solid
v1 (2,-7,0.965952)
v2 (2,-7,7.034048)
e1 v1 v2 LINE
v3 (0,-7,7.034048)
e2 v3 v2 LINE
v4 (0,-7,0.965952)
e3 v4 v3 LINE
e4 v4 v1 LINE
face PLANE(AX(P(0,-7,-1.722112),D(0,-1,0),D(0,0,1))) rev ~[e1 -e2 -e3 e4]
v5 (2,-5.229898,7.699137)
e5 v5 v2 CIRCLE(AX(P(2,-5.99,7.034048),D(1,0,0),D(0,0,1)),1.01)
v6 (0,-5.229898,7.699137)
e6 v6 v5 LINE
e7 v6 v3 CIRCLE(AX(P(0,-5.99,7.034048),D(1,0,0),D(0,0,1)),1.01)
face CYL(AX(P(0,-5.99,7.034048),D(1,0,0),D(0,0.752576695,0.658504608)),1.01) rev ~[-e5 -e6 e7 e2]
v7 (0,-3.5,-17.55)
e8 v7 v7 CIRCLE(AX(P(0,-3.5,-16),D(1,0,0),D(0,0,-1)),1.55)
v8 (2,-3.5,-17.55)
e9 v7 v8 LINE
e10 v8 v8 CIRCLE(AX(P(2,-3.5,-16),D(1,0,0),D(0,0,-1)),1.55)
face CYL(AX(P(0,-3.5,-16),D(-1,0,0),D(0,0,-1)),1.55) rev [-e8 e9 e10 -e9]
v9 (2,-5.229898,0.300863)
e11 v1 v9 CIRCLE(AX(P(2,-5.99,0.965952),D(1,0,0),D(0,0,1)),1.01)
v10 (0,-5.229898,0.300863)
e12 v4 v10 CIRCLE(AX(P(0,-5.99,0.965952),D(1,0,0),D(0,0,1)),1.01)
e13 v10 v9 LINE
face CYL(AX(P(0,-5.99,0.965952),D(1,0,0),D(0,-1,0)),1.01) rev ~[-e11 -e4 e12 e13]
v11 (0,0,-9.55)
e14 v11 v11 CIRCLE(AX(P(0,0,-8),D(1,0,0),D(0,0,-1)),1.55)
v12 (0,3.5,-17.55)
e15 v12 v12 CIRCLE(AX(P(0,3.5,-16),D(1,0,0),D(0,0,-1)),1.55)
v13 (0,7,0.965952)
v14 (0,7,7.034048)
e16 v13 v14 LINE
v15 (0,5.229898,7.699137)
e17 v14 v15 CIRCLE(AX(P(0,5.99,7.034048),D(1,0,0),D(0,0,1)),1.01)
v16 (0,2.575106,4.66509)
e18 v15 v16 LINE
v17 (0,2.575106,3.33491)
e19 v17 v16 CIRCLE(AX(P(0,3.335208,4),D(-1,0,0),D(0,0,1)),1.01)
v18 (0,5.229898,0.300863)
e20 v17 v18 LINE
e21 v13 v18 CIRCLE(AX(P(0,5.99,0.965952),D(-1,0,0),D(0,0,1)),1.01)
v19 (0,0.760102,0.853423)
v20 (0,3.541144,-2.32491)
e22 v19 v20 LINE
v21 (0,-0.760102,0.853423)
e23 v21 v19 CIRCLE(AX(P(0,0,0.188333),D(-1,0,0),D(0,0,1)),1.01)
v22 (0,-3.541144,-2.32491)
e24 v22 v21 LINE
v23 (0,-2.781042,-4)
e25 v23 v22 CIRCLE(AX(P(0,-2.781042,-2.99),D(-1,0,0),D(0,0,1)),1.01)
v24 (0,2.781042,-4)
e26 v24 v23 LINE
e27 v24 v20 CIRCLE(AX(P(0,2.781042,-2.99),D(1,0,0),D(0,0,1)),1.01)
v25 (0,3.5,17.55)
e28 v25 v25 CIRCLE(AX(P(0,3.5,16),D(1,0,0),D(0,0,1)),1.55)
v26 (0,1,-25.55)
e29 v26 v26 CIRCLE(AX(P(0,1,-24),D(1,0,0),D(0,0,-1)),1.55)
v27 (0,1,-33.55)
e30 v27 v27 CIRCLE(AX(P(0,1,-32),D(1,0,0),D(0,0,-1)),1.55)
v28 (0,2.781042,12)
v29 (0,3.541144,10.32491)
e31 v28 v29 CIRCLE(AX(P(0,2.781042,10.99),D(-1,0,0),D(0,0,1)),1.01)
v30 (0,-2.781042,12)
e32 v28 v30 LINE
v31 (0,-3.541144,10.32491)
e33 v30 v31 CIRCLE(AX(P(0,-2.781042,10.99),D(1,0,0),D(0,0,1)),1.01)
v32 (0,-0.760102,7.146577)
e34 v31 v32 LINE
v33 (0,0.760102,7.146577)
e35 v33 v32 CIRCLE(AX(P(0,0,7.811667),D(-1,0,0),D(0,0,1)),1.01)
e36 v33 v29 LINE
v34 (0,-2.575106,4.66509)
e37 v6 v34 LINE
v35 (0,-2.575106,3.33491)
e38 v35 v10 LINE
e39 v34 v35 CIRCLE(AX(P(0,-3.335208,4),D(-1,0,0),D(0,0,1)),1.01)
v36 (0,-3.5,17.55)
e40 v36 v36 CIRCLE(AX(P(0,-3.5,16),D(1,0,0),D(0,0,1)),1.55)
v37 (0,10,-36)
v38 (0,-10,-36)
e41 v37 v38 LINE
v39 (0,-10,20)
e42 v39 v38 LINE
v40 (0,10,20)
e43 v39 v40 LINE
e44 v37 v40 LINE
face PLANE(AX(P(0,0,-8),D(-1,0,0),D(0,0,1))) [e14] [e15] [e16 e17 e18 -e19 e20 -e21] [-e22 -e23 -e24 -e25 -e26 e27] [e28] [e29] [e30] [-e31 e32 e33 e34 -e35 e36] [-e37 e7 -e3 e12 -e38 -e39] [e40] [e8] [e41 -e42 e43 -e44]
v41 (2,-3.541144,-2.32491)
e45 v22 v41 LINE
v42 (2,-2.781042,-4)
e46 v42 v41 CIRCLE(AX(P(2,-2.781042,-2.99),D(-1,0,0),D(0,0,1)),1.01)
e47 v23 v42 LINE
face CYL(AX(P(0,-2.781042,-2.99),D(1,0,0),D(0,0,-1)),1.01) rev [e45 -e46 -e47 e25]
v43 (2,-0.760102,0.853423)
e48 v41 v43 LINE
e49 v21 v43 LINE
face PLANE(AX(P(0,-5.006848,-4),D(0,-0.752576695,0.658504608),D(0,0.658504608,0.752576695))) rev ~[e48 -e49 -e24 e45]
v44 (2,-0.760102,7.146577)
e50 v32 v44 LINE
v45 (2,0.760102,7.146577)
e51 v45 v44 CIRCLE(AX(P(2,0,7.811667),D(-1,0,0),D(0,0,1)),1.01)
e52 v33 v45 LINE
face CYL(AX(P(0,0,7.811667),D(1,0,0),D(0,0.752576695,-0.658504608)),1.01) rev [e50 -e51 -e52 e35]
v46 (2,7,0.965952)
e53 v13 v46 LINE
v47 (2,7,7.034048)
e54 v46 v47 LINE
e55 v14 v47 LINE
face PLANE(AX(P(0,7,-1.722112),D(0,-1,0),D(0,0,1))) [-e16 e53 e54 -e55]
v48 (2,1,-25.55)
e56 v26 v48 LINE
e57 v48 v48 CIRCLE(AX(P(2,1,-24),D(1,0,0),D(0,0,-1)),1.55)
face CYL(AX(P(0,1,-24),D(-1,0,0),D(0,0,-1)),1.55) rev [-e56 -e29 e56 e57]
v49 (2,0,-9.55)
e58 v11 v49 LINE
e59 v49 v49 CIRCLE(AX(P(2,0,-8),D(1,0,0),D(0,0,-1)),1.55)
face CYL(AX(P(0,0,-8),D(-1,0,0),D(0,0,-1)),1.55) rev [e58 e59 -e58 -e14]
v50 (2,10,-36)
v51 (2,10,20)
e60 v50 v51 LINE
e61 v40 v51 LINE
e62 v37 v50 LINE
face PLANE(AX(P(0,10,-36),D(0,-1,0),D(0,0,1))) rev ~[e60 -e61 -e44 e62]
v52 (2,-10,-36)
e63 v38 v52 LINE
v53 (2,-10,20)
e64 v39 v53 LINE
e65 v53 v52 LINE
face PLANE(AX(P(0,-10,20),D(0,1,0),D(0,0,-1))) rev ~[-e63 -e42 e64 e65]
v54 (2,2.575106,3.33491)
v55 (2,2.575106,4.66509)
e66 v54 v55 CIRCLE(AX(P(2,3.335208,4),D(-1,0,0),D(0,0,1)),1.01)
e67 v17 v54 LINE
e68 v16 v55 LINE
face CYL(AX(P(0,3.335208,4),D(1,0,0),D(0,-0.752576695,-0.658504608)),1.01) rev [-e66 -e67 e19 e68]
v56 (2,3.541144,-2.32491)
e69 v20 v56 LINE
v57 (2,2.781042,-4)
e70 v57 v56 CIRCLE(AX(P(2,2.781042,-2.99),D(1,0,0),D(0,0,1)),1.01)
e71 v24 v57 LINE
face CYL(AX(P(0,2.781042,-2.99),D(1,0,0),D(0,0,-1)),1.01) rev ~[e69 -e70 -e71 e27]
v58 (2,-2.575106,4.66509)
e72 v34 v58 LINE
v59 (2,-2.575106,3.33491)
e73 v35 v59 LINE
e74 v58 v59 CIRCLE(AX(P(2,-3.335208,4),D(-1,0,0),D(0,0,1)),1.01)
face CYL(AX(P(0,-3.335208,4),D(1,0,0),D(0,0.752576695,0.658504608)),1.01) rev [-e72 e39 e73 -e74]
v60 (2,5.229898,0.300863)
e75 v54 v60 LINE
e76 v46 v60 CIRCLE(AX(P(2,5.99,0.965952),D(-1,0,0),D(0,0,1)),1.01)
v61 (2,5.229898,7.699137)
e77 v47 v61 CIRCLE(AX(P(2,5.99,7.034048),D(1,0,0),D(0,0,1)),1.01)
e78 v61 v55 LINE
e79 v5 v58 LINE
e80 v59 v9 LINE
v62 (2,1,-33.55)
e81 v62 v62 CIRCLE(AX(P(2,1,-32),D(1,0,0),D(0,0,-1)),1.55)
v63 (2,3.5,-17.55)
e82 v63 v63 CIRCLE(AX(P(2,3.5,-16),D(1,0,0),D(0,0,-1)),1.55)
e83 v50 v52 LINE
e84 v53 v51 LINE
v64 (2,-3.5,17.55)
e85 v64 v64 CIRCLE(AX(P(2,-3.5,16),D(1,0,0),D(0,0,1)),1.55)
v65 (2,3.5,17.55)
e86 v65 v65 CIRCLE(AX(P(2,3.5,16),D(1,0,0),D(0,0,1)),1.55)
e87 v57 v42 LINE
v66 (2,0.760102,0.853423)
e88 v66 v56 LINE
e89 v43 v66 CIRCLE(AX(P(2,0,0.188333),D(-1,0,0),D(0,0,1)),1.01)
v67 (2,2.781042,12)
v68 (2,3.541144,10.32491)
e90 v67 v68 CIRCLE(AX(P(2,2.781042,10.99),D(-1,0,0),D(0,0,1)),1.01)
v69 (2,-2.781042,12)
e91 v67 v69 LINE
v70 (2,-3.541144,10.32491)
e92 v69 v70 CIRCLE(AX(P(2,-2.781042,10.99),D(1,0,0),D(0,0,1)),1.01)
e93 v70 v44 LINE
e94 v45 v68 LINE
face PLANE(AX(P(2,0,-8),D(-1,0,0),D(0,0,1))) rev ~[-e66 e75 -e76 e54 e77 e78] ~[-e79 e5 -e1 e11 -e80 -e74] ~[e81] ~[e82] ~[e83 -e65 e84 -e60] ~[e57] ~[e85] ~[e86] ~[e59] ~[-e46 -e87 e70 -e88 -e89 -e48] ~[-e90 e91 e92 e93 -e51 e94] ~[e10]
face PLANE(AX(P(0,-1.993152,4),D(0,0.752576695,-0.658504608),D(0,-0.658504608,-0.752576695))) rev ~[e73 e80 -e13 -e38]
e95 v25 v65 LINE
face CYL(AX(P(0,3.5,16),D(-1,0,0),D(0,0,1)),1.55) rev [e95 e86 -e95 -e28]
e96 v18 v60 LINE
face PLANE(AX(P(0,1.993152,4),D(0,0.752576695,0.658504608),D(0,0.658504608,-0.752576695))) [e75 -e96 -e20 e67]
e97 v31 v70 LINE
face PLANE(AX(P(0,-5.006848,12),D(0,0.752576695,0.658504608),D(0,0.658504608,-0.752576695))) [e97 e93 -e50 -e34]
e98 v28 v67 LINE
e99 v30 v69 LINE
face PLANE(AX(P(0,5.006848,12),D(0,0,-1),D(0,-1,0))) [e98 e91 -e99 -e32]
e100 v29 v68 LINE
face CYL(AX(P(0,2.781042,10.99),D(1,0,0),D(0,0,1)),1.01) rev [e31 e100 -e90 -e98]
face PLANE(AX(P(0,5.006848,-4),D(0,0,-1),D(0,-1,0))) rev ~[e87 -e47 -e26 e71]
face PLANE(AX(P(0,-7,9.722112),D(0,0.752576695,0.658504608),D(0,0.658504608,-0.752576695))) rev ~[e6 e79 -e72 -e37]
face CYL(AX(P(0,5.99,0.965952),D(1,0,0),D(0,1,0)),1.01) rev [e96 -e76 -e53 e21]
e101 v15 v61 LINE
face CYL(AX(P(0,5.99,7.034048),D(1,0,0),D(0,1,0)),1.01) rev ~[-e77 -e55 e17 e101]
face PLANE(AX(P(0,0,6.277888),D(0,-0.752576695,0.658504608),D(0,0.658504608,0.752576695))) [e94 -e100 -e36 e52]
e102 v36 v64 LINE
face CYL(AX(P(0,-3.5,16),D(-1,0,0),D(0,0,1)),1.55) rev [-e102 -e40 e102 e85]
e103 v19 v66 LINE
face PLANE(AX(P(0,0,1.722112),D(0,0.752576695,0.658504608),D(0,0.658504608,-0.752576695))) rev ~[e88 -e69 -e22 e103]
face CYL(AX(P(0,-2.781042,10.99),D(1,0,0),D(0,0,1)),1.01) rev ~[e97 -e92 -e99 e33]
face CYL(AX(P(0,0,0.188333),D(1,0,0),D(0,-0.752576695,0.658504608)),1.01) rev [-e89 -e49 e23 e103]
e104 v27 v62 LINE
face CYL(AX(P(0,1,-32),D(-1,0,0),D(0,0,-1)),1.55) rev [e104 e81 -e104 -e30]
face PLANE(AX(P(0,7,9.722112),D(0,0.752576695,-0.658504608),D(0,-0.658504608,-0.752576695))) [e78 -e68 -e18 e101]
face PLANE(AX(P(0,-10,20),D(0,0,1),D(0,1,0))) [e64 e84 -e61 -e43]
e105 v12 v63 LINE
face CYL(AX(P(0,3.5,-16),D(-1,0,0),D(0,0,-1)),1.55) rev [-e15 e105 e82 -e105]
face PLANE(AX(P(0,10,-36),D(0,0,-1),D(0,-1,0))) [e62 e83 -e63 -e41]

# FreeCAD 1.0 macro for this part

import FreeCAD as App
import Part
import Sketcher

V = App.Vector
Q = App.Units.Quantity


def edges_at(feature, points):
    """Names of the edges that pass closest to the given points."""
    edges = feature.Shape.Edges
    near = lambda p: min(range(len(edges)), key=lambda i: edges[i].distToShape(Part.Vertex(*p))[0])
    return sorted({f"Edge{near(p) + 1}" for p in points})


def add_polygon(sketch, points):
    """Adds a closed chain of lines whose ends are joined by coincident constraints."""
    first, n = sketch.GeometryCount, len(points)
    for a, b in zip(points, points[1:] + points[:1]):
        sketch.addGeometry(Part.LineSegment(App.Vector(*a, 0), App.Vector(*b, 0)), False)
    for i in range(n):
        sketch.addConstraint(Sketcher.Constraint("Coincident", first + i, 2, first + (i + 1) % n, 1))

doc = App.newDocument("Part")
params = doc.addObject("Spreadsheet::Sheet", "Params")
for row, (alias, value) in enumerate([
    ("sketch1_diameter", "3.1 mm"),
    ("sketch1_width", "20 mm"),
    ("sketch1_height", "56 mm"),
    ("pad1_length", "2 mm"),
    ("fillet_radius", "1.01 mm"),
], start=1):
    params.set(f"A{row}", alias)
    params.set(f"B{row}", "=" + value)
    params.setAlias(f"B{row}", alias)

body = doc.addObject("PartDesign::Body", "Body")

sketch1 = body.newObject("Sketcher::SketchObject", "Sketch")
sketch1.AttachmentSupport = (doc.getObject("YZ_Plane"), [""])
sketch1.MapMode = "FlatFace"
add_polygon(sketch1, [(-10, 20), (-10, -36), (10, -36), (10, 20)])
sketch1.addGeometry(Part.Circle(V(-3.5, -16, 0), V(0, 0, 1), 1.55), False)
add_polygon(sketch1, [(-7, 9.722112), (-1.993152, 4), (-7, -1.722112)])
sketch1.addGeometry(Part.Circle(V(-3.5, 16, 0), V(0, 0, 1), 1.55), False)
sketch1.addGeometry(Part.Circle(V(1, -32, 0), V(0, 0, 1), 1.55), False)
sketch1.addGeometry(Part.Circle(V(1, -24, 0), V(0, 0, 1), 1.55), False)
sketch1.addGeometry(Part.Circle(V(3.5, -16, 0), V(0, 0, 1), 1.55), False)
sketch1.addGeometry(Part.Circle(V(0, -8, 0), V(0, 0, 1), 1.55), False)
add_polygon(sketch1, [(5.006848, -4), (-5.006848, -4), (0, 1.722112)])
add_polygon(sketch1, [(-5.006848, 12), (5.006848, 12), (0, 6.277888)])
add_polygon(sketch1, [(7, 9.722112), (7, -1.722112), (1.993152, 4)])
sketch1.addGeometry(Part.Circle(V(3.5, 16, 0), V(0, 0, 1), 1.55), False)
sketch1.addConstraint([
    Sketcher.Constraint("Vertical", 0),
    Sketcher.Constraint("Horizontal", 1),
    Sketcher.Constraint("Vertical", 2),
    Sketcher.Constraint("Horizontal", 3),
    Sketcher.Constraint("Vertical", 7),
    Sketcher.Constraint("Horizontal", 13),
    Sketcher.Constraint("Horizontal", 16),
    Sketcher.Constraint("Vertical", 19),
    Sketcher.Constraint("Equal", 4, 8),
    Sketcher.Constraint("Equal", 8, 9),
    Sketcher.Constraint("Equal", 9, 10),
    Sketcher.Constraint("Equal", 10, 11),
    Sketcher.Constraint("Equal", 11, 12),
    Sketcher.Constraint("Equal", 12, 22),
    Sketcher.Constraint("Symmetric", 8, 3, 11, 3, -1, 1),
    Sketcher.Constraint("Symmetric", 4, 3, 22, 3, -1, 1),
    Sketcher.Constraint("Symmetric", 4, 3, 11, 3, -2),
    Sketcher.Constraint("Symmetric", 6, 2, 19, 2, -2),
    Sketcher.Constraint("Symmetric", 5, 2, 20, 2, -2),
    Sketcher.Constraint("PointOnObject", 12, 3, -2),
    Sketcher.Constraint("PointOnObject", 14, 2, -2),
    Sketcher.Constraint("PointOnObject", 17, 2, -2),
    Sketcher.Constraint("Parallel", 6, 14),
    Sketcher.Constraint("Parallel", 5, 15),
    Sketcher.Constraint("Parallel", 14, 17),
    Sketcher.Constraint("Parallel", 15, 18),
    Sketcher.Constraint("Parallel", 18, 20),
    Sketcher.Constraint("Parallel", 17, 21),
    Sketcher.Constraint("Vertical", 9, 3, 10, 3),
    Sketcher.Constraint("Vertical", 15, 2, 16, 2),
    Sketcher.Constraint("Equal", 6, 14),
    Sketcher.Constraint("Diameter", 4, Q("3.1 mm")),
    Sketcher.Constraint("DistanceX", 1, 1, 1, 2, Q("20 mm")),
    Sketcher.Constraint("DistanceY", 0, 2, 0, 1, Q("56 mm")),
    Sketcher.Constraint("DistanceY", 4, 3, -1, 1, Q("16 mm")),
    Sketcher.Constraint("DistanceX", -1, 1, 9, 3, Q("1 mm")),
    Sketcher.Constraint("DistanceY", 9, 3, -1, 1, Q("32 mm")),
    Sketcher.Constraint("DistanceY", 10, 3, -1, 1, Q("24 mm")),
    Sketcher.Constraint("DistanceY", 12, 3, -1, 1, Q("8 mm")),
    Sketcher.Constraint("DistanceX", 0, 2, -1, 1, Q("10 mm")),
    Sketcher.Constraint("DistanceY", 0, 2, -1, 1, Q("36 mm")),
    Sketcher.Constraint("DistanceY", -1, 1, 5, 2, Q("4 mm")),
    Sketcher.Constraint("DistanceX", 6, 2, -1, 1, Q("7 mm")),
    Sketcher.Constraint("DistanceY", 13, 2, -1, 1, Q("4 mm")),
    Sketcher.Constraint("DistanceY", -1, 1, 16, 2, Q("12 mm")),
    Sketcher.Constraint("DistanceX", 4, 3, 11, 3, Q("7 mm")),
    Sketcher.Constraint("Distance", 5, Q("7.60336 mm")),
    Sketcher.Constraint("DistanceX", 13, 2, 13, 1, Q("10.013695 mm")),
])
sketch1.setExpression("Constraints[47]", "Params.sketch1_diameter")
sketch1.setExpression("Constraints[48]", "Params.sketch1_width")
sketch1.setExpression("Constraints[49]", "Params.sketch1_height")
pad1 = body.newObject("PartDesign::Pad", "Pad")
pad1.Profile = sketch1
pad1.setExpression("Length", "Params.pad1_length")
doc.recompute()

fillet = body.newObject("PartDesign::Fillet", "Fillet")
fillet.Base = (pad1, edges_at(pad1, [
    (1, 7, -1.722),
    (1, 7, 9.722),
    (1, 1.993, 4),
    (1, 5.007, 12),
    (1, -5.007, 12),
    (1, 0, 6.278),
    (1, -7, 9.722),
    (1, -7, -1.722),
    (1, -1.993, 4),
    (1, 5.007, -4),
    (1, 0, 1.722),
    (1, -5.007, -4),
]))
fillet.setExpression("Radius", "Params.fillet_radius")

doc.recompute()
